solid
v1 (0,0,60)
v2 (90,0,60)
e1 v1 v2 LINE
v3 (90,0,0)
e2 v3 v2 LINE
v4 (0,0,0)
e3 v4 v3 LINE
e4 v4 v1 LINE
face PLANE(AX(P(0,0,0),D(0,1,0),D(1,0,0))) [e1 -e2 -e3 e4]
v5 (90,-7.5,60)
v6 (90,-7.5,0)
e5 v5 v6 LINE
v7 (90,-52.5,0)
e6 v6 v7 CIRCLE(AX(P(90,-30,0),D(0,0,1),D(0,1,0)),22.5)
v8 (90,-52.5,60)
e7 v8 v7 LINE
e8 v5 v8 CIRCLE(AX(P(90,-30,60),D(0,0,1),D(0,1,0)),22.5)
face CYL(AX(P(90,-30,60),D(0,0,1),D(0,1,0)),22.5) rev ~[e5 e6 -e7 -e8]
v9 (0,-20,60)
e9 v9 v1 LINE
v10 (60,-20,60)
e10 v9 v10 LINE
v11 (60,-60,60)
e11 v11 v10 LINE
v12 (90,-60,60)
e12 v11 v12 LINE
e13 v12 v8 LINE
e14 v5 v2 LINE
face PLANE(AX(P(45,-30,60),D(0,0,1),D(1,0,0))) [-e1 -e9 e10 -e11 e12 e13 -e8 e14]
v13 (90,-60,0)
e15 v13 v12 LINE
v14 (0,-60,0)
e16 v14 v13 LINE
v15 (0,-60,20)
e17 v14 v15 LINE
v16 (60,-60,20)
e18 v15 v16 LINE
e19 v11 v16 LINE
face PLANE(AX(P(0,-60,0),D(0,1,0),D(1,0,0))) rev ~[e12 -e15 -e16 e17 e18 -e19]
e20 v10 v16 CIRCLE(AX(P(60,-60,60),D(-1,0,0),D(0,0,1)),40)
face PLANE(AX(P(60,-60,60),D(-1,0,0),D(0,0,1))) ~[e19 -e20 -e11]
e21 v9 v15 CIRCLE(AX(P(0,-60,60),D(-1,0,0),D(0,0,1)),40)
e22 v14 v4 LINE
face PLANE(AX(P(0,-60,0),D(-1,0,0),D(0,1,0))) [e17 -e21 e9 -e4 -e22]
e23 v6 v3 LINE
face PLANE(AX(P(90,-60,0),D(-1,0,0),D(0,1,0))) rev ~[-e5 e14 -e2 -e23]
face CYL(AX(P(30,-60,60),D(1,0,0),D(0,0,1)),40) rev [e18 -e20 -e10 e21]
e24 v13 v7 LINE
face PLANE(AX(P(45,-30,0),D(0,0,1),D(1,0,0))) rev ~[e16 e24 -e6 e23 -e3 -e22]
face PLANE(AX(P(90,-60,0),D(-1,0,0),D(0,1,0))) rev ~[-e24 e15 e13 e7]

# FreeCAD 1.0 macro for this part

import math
import FreeCAD as App
import Part
import Sketcher
from FreeCAD import Vector

doc = App.newDocument("Part")
body = doc.addObject("PartDesign::Body", "Body")

sketch1 = body.newObject("Sketcher::SketchObject", "Sketch")
sketch1.AttachmentSupport = (doc.getObject("XY_Plane"), [""])
sketch1.MapMode = "FlatFace"
sketch1.addGeometry([
    Part.LineSegment(Vector(0, 0, 0), Vector(0, -60, 0)),
    Part.LineSegment(Vector(0, -60, 0), Vector(90, -60, 0)),
    Part.LineSegment(Vector(90, -60, 0), Vector(90, 0, 0)),
    Part.LineSegment(Vector(90, 0, 0), Vector(0, 0, 0)),
], False)
sketch1.addConstraint([
    Sketcher.Constraint("Coincident", 0, 2, 1, 1),
    Sketcher.Constraint("Coincident", 1, 2, 2, 1),
    Sketcher.Constraint("Coincident", 2, 2, 3, 1),
    Sketcher.Constraint("Coincident", 3, 2, 0, 1),
    Sketcher.Constraint("Vertical", 0),
    Sketcher.Constraint("Horizontal", 1),
    Sketcher.Constraint("Vertical", 2),
    Sketcher.Constraint("Horizontal", 3),
    Sketcher.Constraint("Coincident", 3, 2, -1, 1),
    Sketcher.Constraint("DistanceX", 1, 1, 1, 2, 90.0),
    Sketcher.Constraint("DistanceY", 0, 2, 0, 1, 60.0),
])
pad1 = body.newObject("PartDesign::Pad", "Pad")
pad1.Profile = sketch1
pad1.Length = 60

sketch2 = body.newObject("Sketcher::SketchObject", "Sketch001")
sketch2.AttachmentSupport = (doc.getObject("XY_Plane"), [""])
sketch2.MapMode = "FlatFace"
sketch2.AttachmentOffset = App.Placement(Vector(0, 0, 60), App.Rotation())
sketch2.addGeometry([
    Part.LineSegment(Vector(90, -52, 0), Vector(90, -8, 0)),
    Part.ArcOfCircle(Part.Circle(Vector(90, -30, 0), Vector(0, 0, 1), 22), math.radians(90), math.radians(270)),
], False)
sketch2.addConstraint([
    Sketcher.Constraint("Coincident", 0, 1, 1, 2),
    Sketcher.Constraint("Coincident", 1, 1, 0, 2),
    Sketcher.Constraint("Vertical", 0),
    Sketcher.Constraint("Vertical", 1, 3, 0, 1),
    Sketcher.Constraint("Radius", 1, 22.5),
    Sketcher.Constraint("DistanceX", -1, 1, 1, 3, 90.0),
    Sketcher.Constraint("DistanceY", 1, 3, -1, 1, 30.0),
])
pocket1 = body.newObject("PartDesign::Pocket", "Pocket")
pocket1.Profile = sketch2
pocket1.Type = "ThroughAll"

sketch3 = body.newObject("Sketcher::SketchObject", "Sketch002")
sketch3.AttachmentSupport = (doc.getObject("XZ_Plane"), [""])
sketch3.MapMode = "FlatFace"
sketch3.AttachmentOffset = App.Placement(Vector(0, 0, 60), App.Rotation())
sketch3.addGeometry([
    Part.LineSegment(Vector(0, 100, 0), Vector(0, 60, 0)),
    Part.LineSegment(Vector(0, 60, 0), Vector(60, 60, 0)),
    Part.LineSegment(Vector(60, 60, 0), Vector(60, 100, 0)),
    Part.LineSegment(Vector(60, 100, 0), Vector(0, 100, 0)),
], False)
sketch3.addGeometry(Part.LineSegment(Vector(60, 60, 0), Vector(0, 60, 0)), True)
sketch3.addConstraint([
    Sketcher.Constraint("Coincident", 0, 2, 1, 1),
    Sketcher.Constraint("Coincident", 1, 2, 2, 1),
    Sketcher.Constraint("Coincident", 2, 2, 3, 1),
    Sketcher.Constraint("Coincident", 3, 2, 0, 1),
    Sketcher.Constraint("Vertical", 0),
    Sketcher.Constraint("Horizontal", 1),
    Sketcher.Constraint("Vertical", 2),
    Sketcher.Constraint("Horizontal", 3),
    Sketcher.Constraint("Horizontal", 4),
    Sketcher.Constraint("Coincident", 4, 1, 1, 2),
    Sketcher.Constraint("PointOnObject", 0, 2, -2),
    Sketcher.Constraint("PointOnObject", 4, 2, -2),
    Sketcher.Constraint("DistanceX", 1, 1, 1, 2, 60.0),
    Sketcher.Constraint("DistanceY", 0, 2, 0, 1, 40.0),
    Sketcher.Constraint("DistanceY", -1, 1, 0, 2, 60.0),
])
groove = body.newObject("PartDesign::Groove", "Groove")
groove.Profile = sketch3
groove.ReferenceAxis = (sketch3, ["Axis0"])
groove.Angle = 360

doc.recompute()
